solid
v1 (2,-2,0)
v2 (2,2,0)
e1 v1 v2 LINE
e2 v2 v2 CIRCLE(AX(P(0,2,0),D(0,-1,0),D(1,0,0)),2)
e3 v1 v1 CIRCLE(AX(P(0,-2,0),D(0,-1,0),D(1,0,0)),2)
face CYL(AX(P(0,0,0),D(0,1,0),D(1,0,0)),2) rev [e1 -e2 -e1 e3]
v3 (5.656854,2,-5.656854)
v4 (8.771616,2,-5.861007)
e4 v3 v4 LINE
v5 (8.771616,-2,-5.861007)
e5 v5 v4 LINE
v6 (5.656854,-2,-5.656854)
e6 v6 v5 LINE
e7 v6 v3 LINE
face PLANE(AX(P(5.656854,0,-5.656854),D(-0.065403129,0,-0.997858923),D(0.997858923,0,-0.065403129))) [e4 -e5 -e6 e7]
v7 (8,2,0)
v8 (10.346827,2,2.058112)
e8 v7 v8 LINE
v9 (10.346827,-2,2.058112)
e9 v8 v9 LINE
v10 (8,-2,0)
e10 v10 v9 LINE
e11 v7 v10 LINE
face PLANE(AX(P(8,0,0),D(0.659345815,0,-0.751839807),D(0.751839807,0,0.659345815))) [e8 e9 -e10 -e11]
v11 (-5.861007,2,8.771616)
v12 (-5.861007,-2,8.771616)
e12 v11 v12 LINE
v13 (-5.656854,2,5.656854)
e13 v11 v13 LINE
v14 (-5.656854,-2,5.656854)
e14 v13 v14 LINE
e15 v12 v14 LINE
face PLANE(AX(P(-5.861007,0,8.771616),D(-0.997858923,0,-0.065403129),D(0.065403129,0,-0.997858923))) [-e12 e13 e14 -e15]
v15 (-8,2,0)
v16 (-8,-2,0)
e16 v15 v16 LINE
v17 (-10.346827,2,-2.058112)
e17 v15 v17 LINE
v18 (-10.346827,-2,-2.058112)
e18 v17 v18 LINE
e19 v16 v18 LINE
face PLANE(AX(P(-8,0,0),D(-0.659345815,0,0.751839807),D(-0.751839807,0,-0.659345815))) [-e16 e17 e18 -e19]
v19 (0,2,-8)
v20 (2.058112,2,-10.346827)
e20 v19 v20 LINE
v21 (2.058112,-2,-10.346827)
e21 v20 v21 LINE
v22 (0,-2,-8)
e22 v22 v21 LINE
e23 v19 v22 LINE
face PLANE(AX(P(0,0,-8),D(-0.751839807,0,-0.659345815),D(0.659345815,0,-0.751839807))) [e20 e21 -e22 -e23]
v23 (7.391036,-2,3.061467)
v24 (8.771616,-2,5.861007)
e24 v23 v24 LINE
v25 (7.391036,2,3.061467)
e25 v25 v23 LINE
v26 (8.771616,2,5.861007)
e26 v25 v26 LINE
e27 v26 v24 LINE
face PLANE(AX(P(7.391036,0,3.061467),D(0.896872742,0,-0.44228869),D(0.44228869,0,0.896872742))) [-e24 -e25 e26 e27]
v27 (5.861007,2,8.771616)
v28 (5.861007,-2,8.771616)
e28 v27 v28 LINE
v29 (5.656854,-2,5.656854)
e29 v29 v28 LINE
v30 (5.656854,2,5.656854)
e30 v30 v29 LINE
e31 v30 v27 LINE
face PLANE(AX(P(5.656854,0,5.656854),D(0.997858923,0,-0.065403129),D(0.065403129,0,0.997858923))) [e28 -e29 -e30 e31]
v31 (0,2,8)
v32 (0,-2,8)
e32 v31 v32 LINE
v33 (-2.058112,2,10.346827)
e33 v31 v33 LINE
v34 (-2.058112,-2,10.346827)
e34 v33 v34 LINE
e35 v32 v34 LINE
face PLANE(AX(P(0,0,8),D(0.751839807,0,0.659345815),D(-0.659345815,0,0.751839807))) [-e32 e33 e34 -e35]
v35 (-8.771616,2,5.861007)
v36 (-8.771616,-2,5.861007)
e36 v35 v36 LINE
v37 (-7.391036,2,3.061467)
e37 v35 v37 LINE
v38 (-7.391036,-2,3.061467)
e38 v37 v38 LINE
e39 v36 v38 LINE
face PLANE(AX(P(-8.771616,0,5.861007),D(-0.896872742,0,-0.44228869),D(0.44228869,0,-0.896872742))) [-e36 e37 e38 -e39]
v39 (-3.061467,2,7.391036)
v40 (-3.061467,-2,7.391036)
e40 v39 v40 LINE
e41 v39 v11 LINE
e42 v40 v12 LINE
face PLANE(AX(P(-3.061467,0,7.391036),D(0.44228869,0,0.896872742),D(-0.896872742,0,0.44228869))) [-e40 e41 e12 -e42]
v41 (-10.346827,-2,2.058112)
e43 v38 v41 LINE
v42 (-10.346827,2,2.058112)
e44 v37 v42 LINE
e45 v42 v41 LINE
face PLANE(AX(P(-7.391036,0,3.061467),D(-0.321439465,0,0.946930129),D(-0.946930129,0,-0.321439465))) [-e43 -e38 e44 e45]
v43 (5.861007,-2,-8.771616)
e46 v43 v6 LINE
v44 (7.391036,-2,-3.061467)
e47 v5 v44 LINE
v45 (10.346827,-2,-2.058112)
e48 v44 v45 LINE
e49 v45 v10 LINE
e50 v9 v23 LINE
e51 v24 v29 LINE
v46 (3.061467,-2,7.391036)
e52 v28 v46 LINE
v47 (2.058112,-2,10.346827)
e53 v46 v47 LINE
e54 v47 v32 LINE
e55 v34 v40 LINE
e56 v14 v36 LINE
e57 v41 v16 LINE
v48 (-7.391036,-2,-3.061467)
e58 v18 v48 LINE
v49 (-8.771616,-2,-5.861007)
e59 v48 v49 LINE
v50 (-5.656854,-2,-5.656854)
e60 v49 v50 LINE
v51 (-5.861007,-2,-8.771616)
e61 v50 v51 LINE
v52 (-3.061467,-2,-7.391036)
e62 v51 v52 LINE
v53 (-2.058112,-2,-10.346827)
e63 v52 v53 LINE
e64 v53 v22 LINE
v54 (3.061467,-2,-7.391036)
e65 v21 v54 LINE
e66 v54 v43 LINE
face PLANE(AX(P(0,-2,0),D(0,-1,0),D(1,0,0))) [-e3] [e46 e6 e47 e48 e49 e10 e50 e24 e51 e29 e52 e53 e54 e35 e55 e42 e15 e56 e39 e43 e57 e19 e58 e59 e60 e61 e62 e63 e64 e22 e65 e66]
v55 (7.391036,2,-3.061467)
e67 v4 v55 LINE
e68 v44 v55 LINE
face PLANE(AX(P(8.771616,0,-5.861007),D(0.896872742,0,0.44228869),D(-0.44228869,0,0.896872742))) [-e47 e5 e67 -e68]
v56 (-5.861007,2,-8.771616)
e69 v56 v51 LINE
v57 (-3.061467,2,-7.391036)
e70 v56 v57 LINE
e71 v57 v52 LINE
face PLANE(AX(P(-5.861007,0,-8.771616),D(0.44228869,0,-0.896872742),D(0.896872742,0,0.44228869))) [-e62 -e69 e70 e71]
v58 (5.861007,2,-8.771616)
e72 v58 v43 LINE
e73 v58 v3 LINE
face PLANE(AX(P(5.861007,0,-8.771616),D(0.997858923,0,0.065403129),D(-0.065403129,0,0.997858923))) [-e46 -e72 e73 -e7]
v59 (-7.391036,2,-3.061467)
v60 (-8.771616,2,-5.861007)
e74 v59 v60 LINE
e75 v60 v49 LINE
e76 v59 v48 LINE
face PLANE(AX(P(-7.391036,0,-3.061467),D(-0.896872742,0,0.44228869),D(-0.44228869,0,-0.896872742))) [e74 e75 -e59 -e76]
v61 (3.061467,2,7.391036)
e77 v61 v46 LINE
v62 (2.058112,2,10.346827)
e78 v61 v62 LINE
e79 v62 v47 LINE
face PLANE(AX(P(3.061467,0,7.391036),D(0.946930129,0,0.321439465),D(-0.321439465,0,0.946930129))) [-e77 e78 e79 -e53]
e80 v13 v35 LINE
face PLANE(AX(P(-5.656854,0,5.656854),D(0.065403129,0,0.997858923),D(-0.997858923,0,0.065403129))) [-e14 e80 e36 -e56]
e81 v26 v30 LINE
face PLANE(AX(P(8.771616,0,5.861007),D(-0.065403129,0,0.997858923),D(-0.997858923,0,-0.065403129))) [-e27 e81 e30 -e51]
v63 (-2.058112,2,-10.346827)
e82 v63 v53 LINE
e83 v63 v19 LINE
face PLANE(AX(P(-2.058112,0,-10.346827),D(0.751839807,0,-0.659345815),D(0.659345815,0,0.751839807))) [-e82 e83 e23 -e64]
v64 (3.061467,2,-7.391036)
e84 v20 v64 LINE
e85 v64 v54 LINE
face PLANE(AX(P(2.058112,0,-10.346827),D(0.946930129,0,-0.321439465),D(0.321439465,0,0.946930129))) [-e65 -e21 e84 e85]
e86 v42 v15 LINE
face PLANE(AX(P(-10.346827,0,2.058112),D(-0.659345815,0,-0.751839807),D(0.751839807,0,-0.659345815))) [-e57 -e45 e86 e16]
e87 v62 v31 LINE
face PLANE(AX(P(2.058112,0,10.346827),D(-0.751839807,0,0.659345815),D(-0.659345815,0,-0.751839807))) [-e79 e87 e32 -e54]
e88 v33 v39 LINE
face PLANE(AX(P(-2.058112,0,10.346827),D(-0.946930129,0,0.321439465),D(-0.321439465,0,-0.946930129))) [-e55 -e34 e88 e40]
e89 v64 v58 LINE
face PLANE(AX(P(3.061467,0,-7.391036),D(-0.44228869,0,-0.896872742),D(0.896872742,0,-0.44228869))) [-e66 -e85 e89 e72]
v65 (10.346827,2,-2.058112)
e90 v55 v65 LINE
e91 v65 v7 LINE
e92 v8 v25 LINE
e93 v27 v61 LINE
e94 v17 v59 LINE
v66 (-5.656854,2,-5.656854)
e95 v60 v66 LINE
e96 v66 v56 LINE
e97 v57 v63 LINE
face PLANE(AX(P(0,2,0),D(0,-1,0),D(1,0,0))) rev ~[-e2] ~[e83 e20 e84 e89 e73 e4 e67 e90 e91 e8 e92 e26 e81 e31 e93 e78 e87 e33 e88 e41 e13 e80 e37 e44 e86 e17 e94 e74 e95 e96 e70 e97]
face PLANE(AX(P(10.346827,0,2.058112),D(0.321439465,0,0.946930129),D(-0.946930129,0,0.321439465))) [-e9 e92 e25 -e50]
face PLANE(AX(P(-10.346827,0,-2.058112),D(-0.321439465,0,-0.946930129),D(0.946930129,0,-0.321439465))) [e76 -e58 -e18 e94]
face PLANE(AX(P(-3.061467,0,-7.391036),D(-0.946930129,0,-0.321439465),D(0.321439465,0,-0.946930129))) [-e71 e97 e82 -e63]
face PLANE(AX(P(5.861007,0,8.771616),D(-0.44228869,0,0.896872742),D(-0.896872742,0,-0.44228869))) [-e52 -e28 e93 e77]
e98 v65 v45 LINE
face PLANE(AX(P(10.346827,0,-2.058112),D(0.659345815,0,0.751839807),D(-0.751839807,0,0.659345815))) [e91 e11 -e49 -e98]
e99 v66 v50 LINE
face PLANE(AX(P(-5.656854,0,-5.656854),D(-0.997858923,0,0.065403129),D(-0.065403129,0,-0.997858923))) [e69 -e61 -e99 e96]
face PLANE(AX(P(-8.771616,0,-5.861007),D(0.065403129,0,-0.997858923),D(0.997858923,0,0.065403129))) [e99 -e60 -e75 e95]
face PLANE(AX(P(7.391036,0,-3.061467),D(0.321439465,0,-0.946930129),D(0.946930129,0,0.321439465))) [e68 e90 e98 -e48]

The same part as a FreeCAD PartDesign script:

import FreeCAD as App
import Part
import Sketcher
Q = App.Units.Quantity


def add_polygon(sketch, points):
    """Adds a closed chain of lines whose ends are joined by coincident constraints."""
    first, n = sketch.GeometryCount, len(points)
    for a, b in zip(points, points[1:] + points[:1]):
        sketch.addGeometry(Part.LineSegment(App.Vector(*a, 0), App.Vector(*b, 0)), False)
    for i in range(n):
        sketch.addConstraint(Sketcher.Constraint("Coincident", first + i, 2, first + (i + 1) % n, 1))

doc = App.newDocument("Part")
body = doc.addObject("PartDesign::Body", "Body")

# Sketch on XZ plane
sketch1 = body.newObject("Sketcher::SketchObject", "Sketch")
sketch1.AttachmentSupport = (doc.getObject("XZ_Plane"), [""])
sketch1.MapMode = "FlatFace"
add_polygon(sketch1, [(7.4, -3.1), (10.3, -2.1), (8, 0), (10.3, 2.1), (7.4, 3.1), (8.8, 5.9), (5.7, 5.7), (5.9, 8.8), (3.1, 7.4), (2.1, 10.3), (0, 8), (-2.1, 10.3), (-3.1, 7.4), (-5.9, 8.8), (-5.7, 5.7), (-8.8, 5.9), (-7.4, 3.1), (-10.3, 2.1), (-8, 0), (-10.3, -2.1), (-7.4, -3.1), (-8.8, -5.9), (-5.7, -5.7), (-5.9, -8.8), (-3.1, -7.4), (-2.1, -10.3), (0, -8), (2.1, -10.3), (3.1, -7.4), (5.9, -8.8), (5.7, -5.7), (8.8, -5.9)])  # lines 0-31
sketch1.addGeometry(Part.Circle(App.Vector(0, 0, 0), App.Vector(0, 0, 1), 2), False)  # 32
sketch1.addConstraint(Sketcher.Constraint("Coincident", 32, 3, -1, 1))
sketch1.addConstraint(Sketcher.Constraint("Symmetric", 0, 2, 16, 2, -1, 1))
sketch1.addConstraint(Sketcher.Constraint("Symmetric", 1, 2, 17, 2, -1, 1))
sketch1.addConstraint(Sketcher.Constraint("Symmetric", 2, 2, 18, 2, -1, 1))
sketch1.addConstraint(Sketcher.Constraint("Symmetric", 3, 2, 19, 2, -1, 1))
sketch1.addConstraint(Sketcher.Constraint("Symmetric", 4, 2, 20, 2, -1, 1))
sketch1.addConstraint(Sketcher.Constraint("Symmetric", 5, 2, 21, 2, -1, 1))
sketch1.addConstraint(Sketcher.Constraint("Symmetric", 6, 2, 22, 2, -1, 1))
sketch1.addConstraint(Sketcher.Constraint("Symmetric", 7, 2, 23, 2, -1, 1))
sketch1.addConstraint(Sketcher.Constraint("Symmetric", 8, 2, 24, 2, -1, 1))
sketch1.addConstraint(Sketcher.Constraint("Symmetric", 9, 2, 25, 2, -1, 1))
sketch1.addConstraint(Sketcher.Constraint("Symmetric", 10, 2, 26, 2, -1, 1))
sketch1.addConstraint(Sketcher.Constraint("Symmetric", 11, 2, 27, 2, -1, 1))
sketch1.addConstraint(Sketcher.Constraint("Symmetric", 12, 2, 28, 2, -1, 1))
sketch1.addConstraint(Sketcher.Constraint("Symmetric", 13, 2, 29, 2, -1, 1))
sketch1.addConstraint(Sketcher.Constraint("Symmetric", 14, 2, 30, 2, -1, 1))
sketch1.addConstraint(Sketcher.Constraint("Symmetric", 15, 2, 31, 2, -1, 1))
sketch1.addConstraint(Sketcher.Constraint("Symmetric", 8, 2, 10, 2, -2))
sketch1.addConstraint(Sketcher.Constraint("Symmetric", 7, 2, 11, 2, -2))
sketch1.addConstraint(Sketcher.Constraint("Symmetric", 6, 2, 12, 2, -2))
sketch1.addConstraint(Sketcher.Constraint("Symmetric", 5, 2, 13, 2, -2))
sketch1.addConstraint(Sketcher.Constraint("Symmetric", 4, 2, 14, 2, -2))
sketch1.addConstraint(Sketcher.Constraint("Symmetric", 3, 2, 15, 2, -2))
sketch1.addConstraint(Sketcher.Constraint("Symmetric", 2, 2, 16, 2, -2))
sketch1.addConstraint(Sketcher.Constraint("PointOnObject", 1, 2, -1))
sketch1.addConstraint(Sketcher.Constraint("PointOnObject", 9, 2, -2))
sketch1.addConstraint(Sketcher.Constraint("Perpendicular", 0, 8))
sketch1.addConstraint(Sketcher.Constraint("Perpendicular", 1, 9))
sketch1.addConstraint(Sketcher.Constraint("Perpendicular", 4, 12))
sketch1.addConstraint(Sketcher.Constraint("Perpendicular", 5, 13))
sketch1.addConstraint(Sketcher.Constraint("Equal", 0, 1))
sketch1.addConstraint(Sketcher.Constraint("Equal", 3, 4))
sketch1.addConstraint(Sketcher.Constraint("Equal", 4, 5))
sketch1.addConstraint(Sketcher.Constraint("Equal", 5, 6))
sketch1.addConstraint(Sketcher.Constraint("Equal", 6, 7))
sketch1.addConstraint(Sketcher.Constraint("Equal", 7, 8))
sketch1.addConstraint(Sketcher.Constraint("Equal", 8, 9))
sketch1.addConstraint(Sketcher.Constraint("Diameter", 32, 4.0))
sketch1.addConstraint(Sketcher.Constraint("DistanceX", -1, 1, 1, 2, 8.0))
sketch1.addConstraint(Sketcher.Constraint("Angle", 0, Q("18.75 deg")))
sketch1.addConstraint(Sketcher.Constraint("Angle", 1, Q("138.75 deg")))
sketch1.addConstraint(Sketcher.Constraint("Angle", 4, Q("63.75 deg")))
sketch1.addConstraint(Sketcher.Constraint("Angle", 5, Q("-176.25 deg")))
pad1 = body.newObject("PartDesign::Pad", "Pad")
pad1.Profile = sketch1
pad1.Length = 4
pad1.Midplane = True

doc.recompute()
